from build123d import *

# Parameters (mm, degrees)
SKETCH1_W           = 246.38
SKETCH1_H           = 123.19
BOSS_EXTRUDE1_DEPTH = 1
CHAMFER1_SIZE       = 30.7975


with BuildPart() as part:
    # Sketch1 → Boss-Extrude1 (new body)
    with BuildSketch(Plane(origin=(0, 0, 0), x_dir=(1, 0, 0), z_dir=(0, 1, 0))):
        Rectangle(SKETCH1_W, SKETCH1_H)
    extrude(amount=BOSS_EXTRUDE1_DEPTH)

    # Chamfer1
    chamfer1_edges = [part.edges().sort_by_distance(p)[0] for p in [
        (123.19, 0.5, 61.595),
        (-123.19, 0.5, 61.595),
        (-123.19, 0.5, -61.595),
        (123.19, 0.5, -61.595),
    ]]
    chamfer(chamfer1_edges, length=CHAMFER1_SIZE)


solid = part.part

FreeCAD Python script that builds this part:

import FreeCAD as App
import Part
import Sketcher
Q = App.Units.Quantity


def edges_at(feature, points):
    """Names of the edges that pass closest to the given points."""
    edges = feature.Shape.Edges
    near = lambda p: min(range(len(edges)), key=lambda i: edges[i].distToShape(Part.Vertex(*p))[0])
    return sorted({f"Edge{near(p) + 1}" for p in points})

doc = App.newDocument("Part")
body = doc.addObject("PartDesign::Body", "Body")

# Sketch on XZ plane
sketch1 = doc.addObject("Sketcher::SketchObject", "Sketch")
body.addObject(sketch1)
sketch1.AttachmentSupport = (doc.XZ_Plane, [""])
sketch1.MapMode = "FlatFace"
sketch1.addGeometry(Part.LineSegment(App.Vector(-123, -62, 0), App.Vector(-123, 62, 0)), False)
sketch1.addGeometry(Part.LineSegment(App.Vector(-123, 62, 0), App.Vector(123, 62, 0)), False)
sketch1.addGeometry(Part.LineSegment(App.Vector(123, 62, 0), App.Vector(123, -62, 0)), False)
sketch1.addGeometry(Part.LineSegment(App.Vector(123, -62, 0), App.Vector(-123, -62, 0)), False)
sketch1.addConstraint(Sketcher.Constraint("Coincident", 0, 2, 1, 1))
sketch1.addConstraint(Sketcher.Constraint("Coincident", 1, 2, 2, 1))
sketch1.addConstraint(Sketcher.Constraint("Coincident", 2, 2, 3, 1))
sketch1.addConstraint(Sketcher.Constraint("Coincident", 3, 2, 0, 1))
sketch1.addConstraint(Sketcher.Constraint("Vertical", 0))
sketch1.addConstraint(Sketcher.Constraint("Horizontal", 1))
sketch1.addConstraint(Sketcher.Constraint("Vertical", 2))
sketch1.addConstraint(Sketcher.Constraint("Horizontal", 3))
sketch1.addConstraint(Sketcher.Constraint("Symmetric", 0, 2, 2, 2, -1, 1))
sketch1.addConstraint(Sketcher.Constraint("DistanceX", 1, 1, 1, 2, Q("9.7 in")))
sketch1.addConstraint(Sketcher.Constraint("DistanceY", 0, 1, 0, 2, Q("4.85 in")))
pad1 = doc.addObject("PartDesign::Pad", "Pad")
body.addObject(pad1)
pad1.Profile = sketch1
pad1.Length = 1
pad1.Reversed = True
doc.recompute()

chamfer = doc.addObject("PartDesign::Chamfer", "Chamfer")
body.addObject(chamfer)
chamfer.Base = (pad1, edges_at(pad1, [
    (123.19, 0.5, 61.595),
    (-123.19, 0.5, 61.595),
    (-123.19, 0.5, -61.595),
    (123.19, 0.5, -61.595),
]))
chamfer.Size = Q("1.2125 in")

doc.recompute()
